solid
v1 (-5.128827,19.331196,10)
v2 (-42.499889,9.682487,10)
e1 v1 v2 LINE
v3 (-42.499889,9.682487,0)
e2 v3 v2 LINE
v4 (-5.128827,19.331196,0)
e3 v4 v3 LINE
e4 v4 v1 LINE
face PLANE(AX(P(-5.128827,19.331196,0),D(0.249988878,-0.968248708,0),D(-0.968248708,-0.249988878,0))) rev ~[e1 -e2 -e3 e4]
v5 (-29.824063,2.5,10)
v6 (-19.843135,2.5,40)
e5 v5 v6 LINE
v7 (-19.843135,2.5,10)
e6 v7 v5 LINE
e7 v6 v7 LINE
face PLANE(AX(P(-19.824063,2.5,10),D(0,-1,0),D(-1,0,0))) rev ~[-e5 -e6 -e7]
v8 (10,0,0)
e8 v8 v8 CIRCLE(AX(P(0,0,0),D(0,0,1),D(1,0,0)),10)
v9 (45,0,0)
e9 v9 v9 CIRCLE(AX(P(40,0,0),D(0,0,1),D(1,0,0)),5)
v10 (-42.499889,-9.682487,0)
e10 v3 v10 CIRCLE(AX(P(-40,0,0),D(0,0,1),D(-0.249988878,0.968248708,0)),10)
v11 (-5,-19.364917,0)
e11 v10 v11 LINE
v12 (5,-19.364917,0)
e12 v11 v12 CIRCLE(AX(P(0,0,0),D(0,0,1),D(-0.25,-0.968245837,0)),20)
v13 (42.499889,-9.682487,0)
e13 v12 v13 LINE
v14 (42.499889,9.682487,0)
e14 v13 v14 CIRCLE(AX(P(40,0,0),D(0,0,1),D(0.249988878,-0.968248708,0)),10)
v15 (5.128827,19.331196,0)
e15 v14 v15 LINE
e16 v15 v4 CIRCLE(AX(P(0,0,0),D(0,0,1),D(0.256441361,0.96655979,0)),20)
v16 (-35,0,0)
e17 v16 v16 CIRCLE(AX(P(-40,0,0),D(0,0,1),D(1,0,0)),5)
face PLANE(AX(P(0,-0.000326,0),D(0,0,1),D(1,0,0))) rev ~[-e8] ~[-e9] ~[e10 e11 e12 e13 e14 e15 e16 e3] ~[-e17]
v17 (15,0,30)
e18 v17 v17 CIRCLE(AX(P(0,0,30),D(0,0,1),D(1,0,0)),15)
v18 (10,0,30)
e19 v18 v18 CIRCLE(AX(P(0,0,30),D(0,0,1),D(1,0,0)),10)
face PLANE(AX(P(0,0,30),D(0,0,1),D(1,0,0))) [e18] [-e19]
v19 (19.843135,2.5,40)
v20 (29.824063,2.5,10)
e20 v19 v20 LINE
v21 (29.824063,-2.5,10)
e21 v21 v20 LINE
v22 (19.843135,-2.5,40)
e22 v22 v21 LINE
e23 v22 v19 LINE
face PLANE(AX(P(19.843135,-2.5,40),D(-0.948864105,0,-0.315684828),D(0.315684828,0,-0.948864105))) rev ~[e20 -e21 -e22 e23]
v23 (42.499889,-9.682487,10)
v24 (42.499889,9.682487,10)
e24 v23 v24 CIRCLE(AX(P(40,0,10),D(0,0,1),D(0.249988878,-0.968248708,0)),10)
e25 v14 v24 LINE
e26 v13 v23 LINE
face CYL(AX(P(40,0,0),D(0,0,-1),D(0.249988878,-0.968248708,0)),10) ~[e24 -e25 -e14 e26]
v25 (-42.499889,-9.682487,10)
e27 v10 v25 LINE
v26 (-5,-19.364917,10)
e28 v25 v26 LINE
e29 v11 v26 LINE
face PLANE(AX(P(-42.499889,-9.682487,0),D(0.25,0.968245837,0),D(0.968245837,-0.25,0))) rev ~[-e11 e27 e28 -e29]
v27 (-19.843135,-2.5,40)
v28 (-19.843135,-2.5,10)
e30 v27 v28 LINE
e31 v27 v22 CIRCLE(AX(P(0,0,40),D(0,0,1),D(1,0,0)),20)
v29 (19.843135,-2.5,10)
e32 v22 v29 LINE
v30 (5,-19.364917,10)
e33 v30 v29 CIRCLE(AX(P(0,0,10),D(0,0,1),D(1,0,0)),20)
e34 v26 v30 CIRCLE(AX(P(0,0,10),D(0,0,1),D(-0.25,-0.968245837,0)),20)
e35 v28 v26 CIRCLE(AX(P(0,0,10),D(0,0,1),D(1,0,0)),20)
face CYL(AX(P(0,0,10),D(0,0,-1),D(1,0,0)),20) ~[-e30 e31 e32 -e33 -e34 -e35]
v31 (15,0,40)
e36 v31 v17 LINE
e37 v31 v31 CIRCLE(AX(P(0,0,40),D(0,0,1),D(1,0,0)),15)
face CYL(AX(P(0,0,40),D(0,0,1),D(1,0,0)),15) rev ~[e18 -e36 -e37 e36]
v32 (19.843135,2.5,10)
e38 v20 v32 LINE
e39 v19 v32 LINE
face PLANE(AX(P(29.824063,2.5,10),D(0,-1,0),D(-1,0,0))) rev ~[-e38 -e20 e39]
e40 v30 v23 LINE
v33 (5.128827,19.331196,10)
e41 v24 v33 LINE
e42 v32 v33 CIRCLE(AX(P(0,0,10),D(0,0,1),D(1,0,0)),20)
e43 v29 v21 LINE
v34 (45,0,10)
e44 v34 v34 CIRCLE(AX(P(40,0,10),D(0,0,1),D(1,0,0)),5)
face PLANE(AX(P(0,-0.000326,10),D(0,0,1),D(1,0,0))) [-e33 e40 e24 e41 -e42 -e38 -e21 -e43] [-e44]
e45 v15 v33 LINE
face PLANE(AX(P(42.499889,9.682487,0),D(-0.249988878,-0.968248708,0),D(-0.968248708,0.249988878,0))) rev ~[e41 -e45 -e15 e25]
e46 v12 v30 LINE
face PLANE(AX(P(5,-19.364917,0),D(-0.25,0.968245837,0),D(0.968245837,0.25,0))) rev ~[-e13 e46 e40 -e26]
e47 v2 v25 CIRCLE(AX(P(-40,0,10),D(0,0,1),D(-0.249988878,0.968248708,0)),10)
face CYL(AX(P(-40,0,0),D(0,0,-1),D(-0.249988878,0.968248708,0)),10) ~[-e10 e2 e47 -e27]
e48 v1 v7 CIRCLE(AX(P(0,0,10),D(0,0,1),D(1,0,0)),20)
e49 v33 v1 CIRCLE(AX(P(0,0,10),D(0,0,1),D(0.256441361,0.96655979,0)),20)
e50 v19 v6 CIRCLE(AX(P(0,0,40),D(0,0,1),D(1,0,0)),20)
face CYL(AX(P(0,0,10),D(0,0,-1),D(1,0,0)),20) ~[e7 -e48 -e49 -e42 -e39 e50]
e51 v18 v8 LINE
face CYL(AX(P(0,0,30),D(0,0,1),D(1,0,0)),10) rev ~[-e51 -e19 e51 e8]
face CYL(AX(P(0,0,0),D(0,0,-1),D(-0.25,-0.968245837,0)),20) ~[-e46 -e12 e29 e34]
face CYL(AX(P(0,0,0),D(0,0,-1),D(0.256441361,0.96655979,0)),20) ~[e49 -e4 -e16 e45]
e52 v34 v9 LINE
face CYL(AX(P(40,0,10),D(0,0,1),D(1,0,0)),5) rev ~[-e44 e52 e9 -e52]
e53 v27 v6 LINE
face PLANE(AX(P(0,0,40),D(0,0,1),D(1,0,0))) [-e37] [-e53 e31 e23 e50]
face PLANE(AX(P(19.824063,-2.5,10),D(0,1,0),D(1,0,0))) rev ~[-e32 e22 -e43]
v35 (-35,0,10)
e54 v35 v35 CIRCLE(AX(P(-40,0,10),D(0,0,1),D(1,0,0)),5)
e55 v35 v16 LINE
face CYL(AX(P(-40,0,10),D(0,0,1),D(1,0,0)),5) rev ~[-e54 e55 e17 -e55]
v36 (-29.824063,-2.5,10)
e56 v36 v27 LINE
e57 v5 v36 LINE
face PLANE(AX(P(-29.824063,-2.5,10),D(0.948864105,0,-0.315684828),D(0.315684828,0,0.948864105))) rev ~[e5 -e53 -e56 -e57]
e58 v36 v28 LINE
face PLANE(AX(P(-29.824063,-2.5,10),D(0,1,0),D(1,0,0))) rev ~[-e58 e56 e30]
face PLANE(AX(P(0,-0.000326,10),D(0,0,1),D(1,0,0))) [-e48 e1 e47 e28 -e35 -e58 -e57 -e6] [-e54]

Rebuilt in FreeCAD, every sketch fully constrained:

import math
import FreeCAD as App
import Part
import Sketcher
from FreeCAD import Vector
Q = App.Units.Quantity


def add_polygon(sketch, points):
    """Adds a closed chain of lines whose ends are joined by coincident constraints."""
    first, n = sketch.GeometryCount, len(points)
    for a, b in zip(points, points[1:] + points[:1]):
        sketch.addGeometry(Part.LineSegment(App.Vector(*a, 0), App.Vector(*b, 0)), False)
    for i in range(n):
        sketch.addConstraint(Sketcher.Constraint("Coincident", first + i, 2, first + (i + 1) % n, 1))

doc = App.newDocument("Part")
params = doc.addObject("Spreadsheet::Sheet", "Params")
for row, (alias, value) in enumerate([
    ("sketch1_radius", "20 mm"),
    ("sketch1_radius2", "10 mm"),
    ("pad1_length", "10 mm"),
    ("sketch2_diameter", "10 mm"),
    ("sketch3_diameter", "40 mm"),
    ("pad2_length", "30 mm"),
    ("sketch4_diameter", "30 mm"),
    ("pocket2_length", "10 mm"),
    ("sketch5_diameter", "20 mm"),
    ("sketch6_width", "10 mm"),
    ("sketch6_height", "5 mm"),
    ("pad3_length", "30 mm"),
    ("sketch7_height", "30 mm"),
], start=1):
    params.set(f"A{row}", alias)
    params.set(f"B{row}", "=" + value)
    params.setAlias(f"B{row}", alias)

body = doc.addObject("PartDesign::Body", "Body")

# Sketch on XY plane
sketch1 = body.newObject("Sketcher::SketchObject", "Sketch")
sketch1.AttachmentSupport = (doc.getObject("XY_Plane"), [""])
sketch1.MapMode = "FlatFace"
sketch1.addGeometry([
    Part.LineSegment(Vector(-42, -10, 0), Vector(-5, -19, 0)),  # 0
    Part.ArcOfCircle(Part.Circle(Vector(0, 0, 0), Vector(0, 0, 1), 20), math.radians(-104), math.radians(-76)),  # 1
    Part.LineSegment(Vector(5, -19, 0), Vector(42, -10, 0)),  # 2
    Part.ArcOfCircle(Part.Circle(Vector(40, 0, 0), Vector(0, 0, 1), 10), math.radians(-76), math.radians(76)),  # 3
    Part.LineSegment(Vector(42, 10, 0), Vector(5, 19, 0)),  # 4
    Part.ArcOfCircle(Part.Circle(Vector(0, 0, 0), Vector(0, 0, 1), 20), math.radians(75), math.radians(105)),  # 5
    Part.LineSegment(Vector(-5, 19, 0), Vector(-42, 10, 0)),  # 6
    Part.ArcOfCircle(Part.Circle(Vector(-40, 0, 0), Vector(0, 0, 1), 10), math.radians(104), math.radians(256)),  # 7
], False)
sketch1.addConstraint([
    Sketcher.Constraint("Tangent", 0, 2, 1, 1),
    Sketcher.Constraint("Tangent", 1, 2, 2, 1),
    Sketcher.Constraint("Coincident", 2, 2, 3, 1),
    Sketcher.Constraint("Tangent", 3, 2, 4, 1),
    Sketcher.Constraint("Coincident", 4, 2, 5, 1),
    Sketcher.Constraint("Coincident", 5, 2, 6, 1),
    Sketcher.Constraint("Tangent", 6, 2, 7, 1),
    Sketcher.Constraint("Coincident", 7, 2, 0, 1),
    Sketcher.Constraint("Coincident", 1, 3, -1, 1),
    Sketcher.Constraint("Coincident", 5, 3, -1, 1),
    Sketcher.Constraint("Equal", 1, 5),
    Sketcher.Constraint("Equal", 3, 7),
    Sketcher.Constraint("Symmetric", 3, 3, 7, 3, -1, 1),
    Sketcher.Constraint("Symmetric", 3, 2, 6, 2, -2),
    Sketcher.Constraint("Horizontal", 2, 2, 7, 2),
    Sketcher.Constraint("Vertical", 2, 2, 3, 2),
    Sketcher.Constraint("Radius", 1, Q("20 mm")),
    Sketcher.Constraint("Radius", 3, Q("10 mm")),
    Sketcher.Constraint("DistanceX", -1, 1, 3, 3, Q("40 mm")),
    Sketcher.Constraint("Distance", 4, Q("38.596552 mm")),
])
sketch1.setExpression("Constraints[16]", "Params.sketch1_radius")
sketch1.setExpression("Constraints[17]", "Params.sketch1_radius2")
pad1 = body.newObject("PartDesign::Pad", "Pad")
pad1.Profile = sketch1
pad1.setExpression("Length", "Params.pad1_length")

# Sketch on XY plane
sketch2 = body.newObject("Sketcher::SketchObject", "Sketch001")
sketch2.AttachmentSupport = (doc.getObject("XY_Plane"), [""])
sketch2.MapMode = "FlatFace"
sketch2.AttachmentOffset = App.Placement(Vector(0, 0, 10), App.Rotation())
sketch2.addGeometry([
    Part.Circle(Vector(-40, 0, 0), Vector(0, 0, 1), 5),
    Part.Circle(Vector(40, 0, 0), Vector(0, 0, 1), 5),
], False)
sketch2.addConstraint([
    Sketcher.Constraint("Equal", 0, 1),
    Sketcher.Constraint("Symmetric", 0, 3, 1, 3, -1, 1),
    Sketcher.Constraint("PointOnObject", 0, 3, -1),
    Sketcher.Constraint("Diameter", 0, Q("10 mm")),
    Sketcher.Constraint("DistanceX", 0, 3, -1, 1, Q("40 mm")),
])
sketch2.setExpression("Constraints[3]", "Params.sketch2_diameter")
pocket1 = body.newObject("PartDesign::Pocket", "Pocket")
pocket1.Profile = sketch2
pocket1.Type = "ThroughAll"

# Sketch on XY plane
sketch3 = body.newObject("Sketcher::SketchObject", "Sketch002")
sketch3.AttachmentSupport = (doc.getObject("XY_Plane"), [""])
sketch3.MapMode = "FlatFace"
sketch3.AttachmentOffset = App.Placement(Vector(0, 0, 10), App.Rotation())
sketch3.addGeometry(Part.Circle(Vector(0, 0, 0), Vector(0, 0, 1), 20), False)
sketch3.addConstraint([
    Sketcher.Constraint("Coincident", 0, 3, -1, 1),
    Sketcher.Constraint("Diameter", 0, Q("40 mm")),
])
sketch3.setExpression("Constraints[1]", "Params.sketch3_diameter")
pad2 = body.newObject("PartDesign::Pad", "Pad001")
pad2.Profile = sketch3
pad2.setExpression("Length", "Params.pad2_length")

# Sketch on XY plane
sketch4 = body.newObject("Sketcher::SketchObject", "Sketch003")
sketch4.AttachmentSupport = (doc.getObject("XY_Plane"), [""])
sketch4.MapMode = "FlatFace"
sketch4.AttachmentOffset = App.Placement(Vector(0, 0, 40), App.Rotation())
sketch4.addGeometry(Part.Circle(Vector(0, 0, 0), Vector(0, 0, 1), 15), False)
sketch4.addConstraint([
    Sketcher.Constraint("Coincident", 0, 3, -1, 1),
    Sketcher.Constraint("Diameter", 0, Q("30 mm")),
])
sketch4.setExpression("Constraints[1]", "Params.sketch4_diameter")
pocket2 = body.newObject("PartDesign::Pocket", "Pocket001")
pocket2.Profile = sketch4
pocket2.setExpression("Length", "Params.pocket2_length")

# Sketch on XY plane
sketch5 = body.newObject("Sketcher::SketchObject", "Sketch004")
sketch5.AttachmentSupport = (doc.getObject("XY_Plane"), [""])
sketch5.MapMode = "FlatFace"
sketch5.AttachmentOffset = App.Placement(Vector(0, 0, 30), App.Rotation())
sketch5.addGeometry(Part.Circle(Vector(0, 0, 0), Vector(0, 0, 1), 10), False)
sketch5.addConstraint([
    Sketcher.Constraint("Coincident", 0, 3, -1, 1),
    Sketcher.Constraint("Diameter", 0, Q("20 mm")),
])
sketch5.setExpression("Constraints[1]", "Params.sketch5_diameter")
pocket3 = body.newObject("PartDesign::Pocket", "Pocket002")
pocket3.Profile = sketch5
pocket3.Type = "ThroughAll"

# Sketch on XY plane
sketch6 = body.newObject("Sketcher::SketchObject", "Sketch005")
sketch6.AttachmentSupport = (doc.getObject("XY_Plane"), [""])
sketch6.MapMode = "FlatFace"
sketch6.AttachmentOffset = App.Placement(Vector(0, 0, 10), App.Rotation())
add_polygon(sketch6, [(-20, -2), (-20, 2), (-30, 2), (-30, -2)])  # lines 0-3
add_polygon(sketch6, [(30, 2), (20, 2), (20, -2), (30, -2)])  # lines 4-7
sketch6.addConstraint([
    Sketcher.Constraint("Vertical", 0),
    Sketcher.Constraint("Horizontal", 1),
    Sketcher.Constraint("Vertical", 2),
    Sketcher.Constraint("Horizontal", 3),
    Sketcher.Constraint("Horizontal", 4),
    Sketcher.Constraint("Vertical", 5),
    Sketcher.Constraint("Horizontal", 6),
    Sketcher.Constraint("Vertical", 7),
    Sketcher.Constraint("Symmetric", 3, 2, 4, 2, -1, 1),
    Sketcher.Constraint("Symmetric", 1, 2, 6, 2, -1, 1),
    Sketcher.Constraint("Horizontal", 1, 2, 4, 2),
    Sketcher.Constraint("DistanceX", 1, 2, 1, 1, Q("10 mm")),
    Sketcher.Constraint("DistanceY", 0, 1, 0, 2, Q("5 mm")),
    Sketcher.Constraint("DistanceX", 0, 2, -1, 1, Q("19.824063 mm")),
])
sketch6.setExpression("Constraints[19]", "Params.sketch6_width")
sketch6.setExpression("Constraints[20]", "Params.sketch6_height")
pad3 = body.newObject("PartDesign::Pad", "Pad002")
pad3.Profile = sketch6
pad3.setExpression("Length", "Params.pad3_length")

# Sketch on XZ plane
sketch7 = body.newObject("Sketcher::SketchObject", "Sketch006")
sketch7.AttachmentSupport = (doc.getObject("XZ_Plane"), [""])
sketch7.MapMode = "FlatFace"
sketch7.AttachmentOffset = App.Placement(Vector(0, 0, 2.5), App.Rotation())
add_polygon(sketch7, [(-30, 40), (-30, 10), (-20, 40)])  # lines 0-2
add_polygon(sketch7, [(20, 40), (30, 10), (30, 40)])  # lines 3-5
sketch7.addConstraint([
    Sketcher.Constraint("Vertical", 0),
    Sketcher.Constraint("Horizontal", 2),
    Sketcher.Constraint("Vertical", 4),
    Sketcher.Constraint("Horizontal", 5),
    Sketcher.Constraint("Symmetric", 0, 2, 3, 2, -2),
    Sketcher.Constraint("Symmetric", 1, 2, 5, 2, -2),
    Sketcher.Constraint("DistanceY", 0, 2, 0, 1, Q("30 mm")),
    Sketcher.Constraint("DistanceY", -1, 1, 0, 2, Q("10 mm")),
    Sketcher.Constraint("DistanceX", 2, 2, 2, 1, Q("9.980929 mm")),
    Sketcher.Constraint("DistanceX", 1, 2, 3, 2, Q("49.667198 mm")),
])
sketch7.setExpression("Constraints[12]", "Params.sketch7_height")
pocket4 = body.newObject("PartDesign::Pocket", "Pocket003")
pocket4.Profile = sketch7
pocket4.Type = "ThroughAll"

doc.recompute()
